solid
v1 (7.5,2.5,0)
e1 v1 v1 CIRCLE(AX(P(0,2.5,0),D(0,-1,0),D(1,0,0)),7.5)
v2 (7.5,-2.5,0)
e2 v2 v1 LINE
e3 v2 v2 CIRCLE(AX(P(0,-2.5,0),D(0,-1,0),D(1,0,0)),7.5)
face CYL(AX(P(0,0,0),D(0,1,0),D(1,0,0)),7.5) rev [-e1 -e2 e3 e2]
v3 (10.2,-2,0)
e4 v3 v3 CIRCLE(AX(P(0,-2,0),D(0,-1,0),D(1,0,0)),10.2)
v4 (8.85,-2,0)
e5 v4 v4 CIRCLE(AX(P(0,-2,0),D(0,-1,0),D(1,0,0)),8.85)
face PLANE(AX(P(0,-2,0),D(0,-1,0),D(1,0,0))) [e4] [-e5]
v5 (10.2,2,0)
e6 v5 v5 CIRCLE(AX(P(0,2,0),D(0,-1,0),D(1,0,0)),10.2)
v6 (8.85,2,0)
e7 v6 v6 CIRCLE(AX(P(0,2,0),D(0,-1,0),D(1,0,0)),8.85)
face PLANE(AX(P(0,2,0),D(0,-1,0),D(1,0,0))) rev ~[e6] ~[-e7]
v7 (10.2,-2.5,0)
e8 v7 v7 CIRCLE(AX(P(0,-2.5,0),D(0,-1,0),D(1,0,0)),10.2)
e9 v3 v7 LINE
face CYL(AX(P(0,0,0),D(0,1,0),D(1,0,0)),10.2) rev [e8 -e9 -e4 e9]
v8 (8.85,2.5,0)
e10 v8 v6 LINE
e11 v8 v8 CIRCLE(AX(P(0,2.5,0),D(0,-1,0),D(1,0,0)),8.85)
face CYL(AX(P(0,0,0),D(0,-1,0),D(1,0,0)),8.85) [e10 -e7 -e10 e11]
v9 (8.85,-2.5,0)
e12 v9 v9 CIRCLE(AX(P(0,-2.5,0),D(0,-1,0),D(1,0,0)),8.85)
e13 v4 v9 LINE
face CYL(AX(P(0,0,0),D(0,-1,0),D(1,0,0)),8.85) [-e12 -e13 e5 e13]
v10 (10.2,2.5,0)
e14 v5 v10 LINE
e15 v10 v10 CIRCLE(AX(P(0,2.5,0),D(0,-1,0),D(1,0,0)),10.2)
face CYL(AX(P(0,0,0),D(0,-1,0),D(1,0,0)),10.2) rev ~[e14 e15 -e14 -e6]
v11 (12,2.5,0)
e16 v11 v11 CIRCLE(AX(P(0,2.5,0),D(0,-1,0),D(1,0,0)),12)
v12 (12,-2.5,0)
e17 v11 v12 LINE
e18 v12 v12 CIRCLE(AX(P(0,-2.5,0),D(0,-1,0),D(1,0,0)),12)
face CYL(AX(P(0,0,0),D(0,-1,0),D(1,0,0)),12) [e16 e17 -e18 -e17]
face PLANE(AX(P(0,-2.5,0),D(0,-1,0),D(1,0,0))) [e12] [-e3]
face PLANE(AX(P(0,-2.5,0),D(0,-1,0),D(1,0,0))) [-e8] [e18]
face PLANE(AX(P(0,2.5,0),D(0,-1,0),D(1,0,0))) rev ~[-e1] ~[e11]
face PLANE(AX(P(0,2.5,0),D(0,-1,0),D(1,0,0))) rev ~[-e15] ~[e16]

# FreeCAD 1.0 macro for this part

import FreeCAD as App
import Part
import Sketcher

V = App.Vector

doc = App.newDocument("Part")
body = doc.addObject("PartDesign::Body", "Body")

# Sketch on XZ plane
sketch1 = doc.addObject("Sketcher::SketchObject", "Sketch")
body.addObject(sketch1)
sketch1.AttachmentSupport = (doc.XZ_Plane, [""])
sketch1.MapMode = "FlatFace"
sketch1.addGeometry([
    Part.Circle(V(0, 0, 0), V(0, 0, 1), 10),
    Part.Circle(V(0, 0, 0), V(0, 0, 1), 9),
], False)
sketch1.addConstraint([
    Sketcher.Constraint("Coincident", 0, 3, -1, 1),
    Sketcher.Constraint("Coincident", 1, 3, -1, 1),
    Sketcher.Constraint("Diameter", 0, 20.4),
    Sketcher.Constraint("Diameter", 1, 17.7),
])
pad1 = doc.addObject("PartDesign::Pad", "Pad")
body.addObject(pad1)
pad1.Profile = sketch1
pad1.Length = 4
pad1.Midplane = True

# Sketch on XZ plane
sketch2 = doc.addObject("Sketcher::SketchObject", "Sketch001")
body.addObject(sketch2)
sketch2.AttachmentSupport = (doc.XZ_Plane, [""])
sketch2.MapMode = "FlatFace"
sketch2.addGeometry([
    Part.Circle(V(0, 0, 0), V(0, 0, 1), 12),
    Part.Circle(V(0, 0, 0), V(0, 0, 1), 10),
    Part.Circle(V(0, 0, 0), V(0, 0, 1), 9),
    Part.Circle(V(0, 0, 0), V(0, 0, 1), 8),
], False)
sketch2.addConstraint([
    Sketcher.Constraint("Coincident", 0, 3, -1, 1),
    Sketcher.Constraint("Coincident", 1, 3, -1, 1),
    Sketcher.Constraint("Coincident", 2, 3, -1, 1),
    Sketcher.Constraint("Coincident", 3, 3, -1, 1),
    Sketcher.Constraint("Diameter", 0, 24.0),
    Sketcher.Constraint("Diameter", 3, 15.0),
    Sketcher.Constraint("Diameter", 1, 20.4),
    Sketcher.Constraint("Diameter", 2, 17.7),
])
pad2 = doc.addObject("PartDesign::Pad", "Pad001")
body.addObject(pad2)
pad2.Profile = sketch2
pad2.Length = 5
pad2.Midplane = True

doc.recompute()
